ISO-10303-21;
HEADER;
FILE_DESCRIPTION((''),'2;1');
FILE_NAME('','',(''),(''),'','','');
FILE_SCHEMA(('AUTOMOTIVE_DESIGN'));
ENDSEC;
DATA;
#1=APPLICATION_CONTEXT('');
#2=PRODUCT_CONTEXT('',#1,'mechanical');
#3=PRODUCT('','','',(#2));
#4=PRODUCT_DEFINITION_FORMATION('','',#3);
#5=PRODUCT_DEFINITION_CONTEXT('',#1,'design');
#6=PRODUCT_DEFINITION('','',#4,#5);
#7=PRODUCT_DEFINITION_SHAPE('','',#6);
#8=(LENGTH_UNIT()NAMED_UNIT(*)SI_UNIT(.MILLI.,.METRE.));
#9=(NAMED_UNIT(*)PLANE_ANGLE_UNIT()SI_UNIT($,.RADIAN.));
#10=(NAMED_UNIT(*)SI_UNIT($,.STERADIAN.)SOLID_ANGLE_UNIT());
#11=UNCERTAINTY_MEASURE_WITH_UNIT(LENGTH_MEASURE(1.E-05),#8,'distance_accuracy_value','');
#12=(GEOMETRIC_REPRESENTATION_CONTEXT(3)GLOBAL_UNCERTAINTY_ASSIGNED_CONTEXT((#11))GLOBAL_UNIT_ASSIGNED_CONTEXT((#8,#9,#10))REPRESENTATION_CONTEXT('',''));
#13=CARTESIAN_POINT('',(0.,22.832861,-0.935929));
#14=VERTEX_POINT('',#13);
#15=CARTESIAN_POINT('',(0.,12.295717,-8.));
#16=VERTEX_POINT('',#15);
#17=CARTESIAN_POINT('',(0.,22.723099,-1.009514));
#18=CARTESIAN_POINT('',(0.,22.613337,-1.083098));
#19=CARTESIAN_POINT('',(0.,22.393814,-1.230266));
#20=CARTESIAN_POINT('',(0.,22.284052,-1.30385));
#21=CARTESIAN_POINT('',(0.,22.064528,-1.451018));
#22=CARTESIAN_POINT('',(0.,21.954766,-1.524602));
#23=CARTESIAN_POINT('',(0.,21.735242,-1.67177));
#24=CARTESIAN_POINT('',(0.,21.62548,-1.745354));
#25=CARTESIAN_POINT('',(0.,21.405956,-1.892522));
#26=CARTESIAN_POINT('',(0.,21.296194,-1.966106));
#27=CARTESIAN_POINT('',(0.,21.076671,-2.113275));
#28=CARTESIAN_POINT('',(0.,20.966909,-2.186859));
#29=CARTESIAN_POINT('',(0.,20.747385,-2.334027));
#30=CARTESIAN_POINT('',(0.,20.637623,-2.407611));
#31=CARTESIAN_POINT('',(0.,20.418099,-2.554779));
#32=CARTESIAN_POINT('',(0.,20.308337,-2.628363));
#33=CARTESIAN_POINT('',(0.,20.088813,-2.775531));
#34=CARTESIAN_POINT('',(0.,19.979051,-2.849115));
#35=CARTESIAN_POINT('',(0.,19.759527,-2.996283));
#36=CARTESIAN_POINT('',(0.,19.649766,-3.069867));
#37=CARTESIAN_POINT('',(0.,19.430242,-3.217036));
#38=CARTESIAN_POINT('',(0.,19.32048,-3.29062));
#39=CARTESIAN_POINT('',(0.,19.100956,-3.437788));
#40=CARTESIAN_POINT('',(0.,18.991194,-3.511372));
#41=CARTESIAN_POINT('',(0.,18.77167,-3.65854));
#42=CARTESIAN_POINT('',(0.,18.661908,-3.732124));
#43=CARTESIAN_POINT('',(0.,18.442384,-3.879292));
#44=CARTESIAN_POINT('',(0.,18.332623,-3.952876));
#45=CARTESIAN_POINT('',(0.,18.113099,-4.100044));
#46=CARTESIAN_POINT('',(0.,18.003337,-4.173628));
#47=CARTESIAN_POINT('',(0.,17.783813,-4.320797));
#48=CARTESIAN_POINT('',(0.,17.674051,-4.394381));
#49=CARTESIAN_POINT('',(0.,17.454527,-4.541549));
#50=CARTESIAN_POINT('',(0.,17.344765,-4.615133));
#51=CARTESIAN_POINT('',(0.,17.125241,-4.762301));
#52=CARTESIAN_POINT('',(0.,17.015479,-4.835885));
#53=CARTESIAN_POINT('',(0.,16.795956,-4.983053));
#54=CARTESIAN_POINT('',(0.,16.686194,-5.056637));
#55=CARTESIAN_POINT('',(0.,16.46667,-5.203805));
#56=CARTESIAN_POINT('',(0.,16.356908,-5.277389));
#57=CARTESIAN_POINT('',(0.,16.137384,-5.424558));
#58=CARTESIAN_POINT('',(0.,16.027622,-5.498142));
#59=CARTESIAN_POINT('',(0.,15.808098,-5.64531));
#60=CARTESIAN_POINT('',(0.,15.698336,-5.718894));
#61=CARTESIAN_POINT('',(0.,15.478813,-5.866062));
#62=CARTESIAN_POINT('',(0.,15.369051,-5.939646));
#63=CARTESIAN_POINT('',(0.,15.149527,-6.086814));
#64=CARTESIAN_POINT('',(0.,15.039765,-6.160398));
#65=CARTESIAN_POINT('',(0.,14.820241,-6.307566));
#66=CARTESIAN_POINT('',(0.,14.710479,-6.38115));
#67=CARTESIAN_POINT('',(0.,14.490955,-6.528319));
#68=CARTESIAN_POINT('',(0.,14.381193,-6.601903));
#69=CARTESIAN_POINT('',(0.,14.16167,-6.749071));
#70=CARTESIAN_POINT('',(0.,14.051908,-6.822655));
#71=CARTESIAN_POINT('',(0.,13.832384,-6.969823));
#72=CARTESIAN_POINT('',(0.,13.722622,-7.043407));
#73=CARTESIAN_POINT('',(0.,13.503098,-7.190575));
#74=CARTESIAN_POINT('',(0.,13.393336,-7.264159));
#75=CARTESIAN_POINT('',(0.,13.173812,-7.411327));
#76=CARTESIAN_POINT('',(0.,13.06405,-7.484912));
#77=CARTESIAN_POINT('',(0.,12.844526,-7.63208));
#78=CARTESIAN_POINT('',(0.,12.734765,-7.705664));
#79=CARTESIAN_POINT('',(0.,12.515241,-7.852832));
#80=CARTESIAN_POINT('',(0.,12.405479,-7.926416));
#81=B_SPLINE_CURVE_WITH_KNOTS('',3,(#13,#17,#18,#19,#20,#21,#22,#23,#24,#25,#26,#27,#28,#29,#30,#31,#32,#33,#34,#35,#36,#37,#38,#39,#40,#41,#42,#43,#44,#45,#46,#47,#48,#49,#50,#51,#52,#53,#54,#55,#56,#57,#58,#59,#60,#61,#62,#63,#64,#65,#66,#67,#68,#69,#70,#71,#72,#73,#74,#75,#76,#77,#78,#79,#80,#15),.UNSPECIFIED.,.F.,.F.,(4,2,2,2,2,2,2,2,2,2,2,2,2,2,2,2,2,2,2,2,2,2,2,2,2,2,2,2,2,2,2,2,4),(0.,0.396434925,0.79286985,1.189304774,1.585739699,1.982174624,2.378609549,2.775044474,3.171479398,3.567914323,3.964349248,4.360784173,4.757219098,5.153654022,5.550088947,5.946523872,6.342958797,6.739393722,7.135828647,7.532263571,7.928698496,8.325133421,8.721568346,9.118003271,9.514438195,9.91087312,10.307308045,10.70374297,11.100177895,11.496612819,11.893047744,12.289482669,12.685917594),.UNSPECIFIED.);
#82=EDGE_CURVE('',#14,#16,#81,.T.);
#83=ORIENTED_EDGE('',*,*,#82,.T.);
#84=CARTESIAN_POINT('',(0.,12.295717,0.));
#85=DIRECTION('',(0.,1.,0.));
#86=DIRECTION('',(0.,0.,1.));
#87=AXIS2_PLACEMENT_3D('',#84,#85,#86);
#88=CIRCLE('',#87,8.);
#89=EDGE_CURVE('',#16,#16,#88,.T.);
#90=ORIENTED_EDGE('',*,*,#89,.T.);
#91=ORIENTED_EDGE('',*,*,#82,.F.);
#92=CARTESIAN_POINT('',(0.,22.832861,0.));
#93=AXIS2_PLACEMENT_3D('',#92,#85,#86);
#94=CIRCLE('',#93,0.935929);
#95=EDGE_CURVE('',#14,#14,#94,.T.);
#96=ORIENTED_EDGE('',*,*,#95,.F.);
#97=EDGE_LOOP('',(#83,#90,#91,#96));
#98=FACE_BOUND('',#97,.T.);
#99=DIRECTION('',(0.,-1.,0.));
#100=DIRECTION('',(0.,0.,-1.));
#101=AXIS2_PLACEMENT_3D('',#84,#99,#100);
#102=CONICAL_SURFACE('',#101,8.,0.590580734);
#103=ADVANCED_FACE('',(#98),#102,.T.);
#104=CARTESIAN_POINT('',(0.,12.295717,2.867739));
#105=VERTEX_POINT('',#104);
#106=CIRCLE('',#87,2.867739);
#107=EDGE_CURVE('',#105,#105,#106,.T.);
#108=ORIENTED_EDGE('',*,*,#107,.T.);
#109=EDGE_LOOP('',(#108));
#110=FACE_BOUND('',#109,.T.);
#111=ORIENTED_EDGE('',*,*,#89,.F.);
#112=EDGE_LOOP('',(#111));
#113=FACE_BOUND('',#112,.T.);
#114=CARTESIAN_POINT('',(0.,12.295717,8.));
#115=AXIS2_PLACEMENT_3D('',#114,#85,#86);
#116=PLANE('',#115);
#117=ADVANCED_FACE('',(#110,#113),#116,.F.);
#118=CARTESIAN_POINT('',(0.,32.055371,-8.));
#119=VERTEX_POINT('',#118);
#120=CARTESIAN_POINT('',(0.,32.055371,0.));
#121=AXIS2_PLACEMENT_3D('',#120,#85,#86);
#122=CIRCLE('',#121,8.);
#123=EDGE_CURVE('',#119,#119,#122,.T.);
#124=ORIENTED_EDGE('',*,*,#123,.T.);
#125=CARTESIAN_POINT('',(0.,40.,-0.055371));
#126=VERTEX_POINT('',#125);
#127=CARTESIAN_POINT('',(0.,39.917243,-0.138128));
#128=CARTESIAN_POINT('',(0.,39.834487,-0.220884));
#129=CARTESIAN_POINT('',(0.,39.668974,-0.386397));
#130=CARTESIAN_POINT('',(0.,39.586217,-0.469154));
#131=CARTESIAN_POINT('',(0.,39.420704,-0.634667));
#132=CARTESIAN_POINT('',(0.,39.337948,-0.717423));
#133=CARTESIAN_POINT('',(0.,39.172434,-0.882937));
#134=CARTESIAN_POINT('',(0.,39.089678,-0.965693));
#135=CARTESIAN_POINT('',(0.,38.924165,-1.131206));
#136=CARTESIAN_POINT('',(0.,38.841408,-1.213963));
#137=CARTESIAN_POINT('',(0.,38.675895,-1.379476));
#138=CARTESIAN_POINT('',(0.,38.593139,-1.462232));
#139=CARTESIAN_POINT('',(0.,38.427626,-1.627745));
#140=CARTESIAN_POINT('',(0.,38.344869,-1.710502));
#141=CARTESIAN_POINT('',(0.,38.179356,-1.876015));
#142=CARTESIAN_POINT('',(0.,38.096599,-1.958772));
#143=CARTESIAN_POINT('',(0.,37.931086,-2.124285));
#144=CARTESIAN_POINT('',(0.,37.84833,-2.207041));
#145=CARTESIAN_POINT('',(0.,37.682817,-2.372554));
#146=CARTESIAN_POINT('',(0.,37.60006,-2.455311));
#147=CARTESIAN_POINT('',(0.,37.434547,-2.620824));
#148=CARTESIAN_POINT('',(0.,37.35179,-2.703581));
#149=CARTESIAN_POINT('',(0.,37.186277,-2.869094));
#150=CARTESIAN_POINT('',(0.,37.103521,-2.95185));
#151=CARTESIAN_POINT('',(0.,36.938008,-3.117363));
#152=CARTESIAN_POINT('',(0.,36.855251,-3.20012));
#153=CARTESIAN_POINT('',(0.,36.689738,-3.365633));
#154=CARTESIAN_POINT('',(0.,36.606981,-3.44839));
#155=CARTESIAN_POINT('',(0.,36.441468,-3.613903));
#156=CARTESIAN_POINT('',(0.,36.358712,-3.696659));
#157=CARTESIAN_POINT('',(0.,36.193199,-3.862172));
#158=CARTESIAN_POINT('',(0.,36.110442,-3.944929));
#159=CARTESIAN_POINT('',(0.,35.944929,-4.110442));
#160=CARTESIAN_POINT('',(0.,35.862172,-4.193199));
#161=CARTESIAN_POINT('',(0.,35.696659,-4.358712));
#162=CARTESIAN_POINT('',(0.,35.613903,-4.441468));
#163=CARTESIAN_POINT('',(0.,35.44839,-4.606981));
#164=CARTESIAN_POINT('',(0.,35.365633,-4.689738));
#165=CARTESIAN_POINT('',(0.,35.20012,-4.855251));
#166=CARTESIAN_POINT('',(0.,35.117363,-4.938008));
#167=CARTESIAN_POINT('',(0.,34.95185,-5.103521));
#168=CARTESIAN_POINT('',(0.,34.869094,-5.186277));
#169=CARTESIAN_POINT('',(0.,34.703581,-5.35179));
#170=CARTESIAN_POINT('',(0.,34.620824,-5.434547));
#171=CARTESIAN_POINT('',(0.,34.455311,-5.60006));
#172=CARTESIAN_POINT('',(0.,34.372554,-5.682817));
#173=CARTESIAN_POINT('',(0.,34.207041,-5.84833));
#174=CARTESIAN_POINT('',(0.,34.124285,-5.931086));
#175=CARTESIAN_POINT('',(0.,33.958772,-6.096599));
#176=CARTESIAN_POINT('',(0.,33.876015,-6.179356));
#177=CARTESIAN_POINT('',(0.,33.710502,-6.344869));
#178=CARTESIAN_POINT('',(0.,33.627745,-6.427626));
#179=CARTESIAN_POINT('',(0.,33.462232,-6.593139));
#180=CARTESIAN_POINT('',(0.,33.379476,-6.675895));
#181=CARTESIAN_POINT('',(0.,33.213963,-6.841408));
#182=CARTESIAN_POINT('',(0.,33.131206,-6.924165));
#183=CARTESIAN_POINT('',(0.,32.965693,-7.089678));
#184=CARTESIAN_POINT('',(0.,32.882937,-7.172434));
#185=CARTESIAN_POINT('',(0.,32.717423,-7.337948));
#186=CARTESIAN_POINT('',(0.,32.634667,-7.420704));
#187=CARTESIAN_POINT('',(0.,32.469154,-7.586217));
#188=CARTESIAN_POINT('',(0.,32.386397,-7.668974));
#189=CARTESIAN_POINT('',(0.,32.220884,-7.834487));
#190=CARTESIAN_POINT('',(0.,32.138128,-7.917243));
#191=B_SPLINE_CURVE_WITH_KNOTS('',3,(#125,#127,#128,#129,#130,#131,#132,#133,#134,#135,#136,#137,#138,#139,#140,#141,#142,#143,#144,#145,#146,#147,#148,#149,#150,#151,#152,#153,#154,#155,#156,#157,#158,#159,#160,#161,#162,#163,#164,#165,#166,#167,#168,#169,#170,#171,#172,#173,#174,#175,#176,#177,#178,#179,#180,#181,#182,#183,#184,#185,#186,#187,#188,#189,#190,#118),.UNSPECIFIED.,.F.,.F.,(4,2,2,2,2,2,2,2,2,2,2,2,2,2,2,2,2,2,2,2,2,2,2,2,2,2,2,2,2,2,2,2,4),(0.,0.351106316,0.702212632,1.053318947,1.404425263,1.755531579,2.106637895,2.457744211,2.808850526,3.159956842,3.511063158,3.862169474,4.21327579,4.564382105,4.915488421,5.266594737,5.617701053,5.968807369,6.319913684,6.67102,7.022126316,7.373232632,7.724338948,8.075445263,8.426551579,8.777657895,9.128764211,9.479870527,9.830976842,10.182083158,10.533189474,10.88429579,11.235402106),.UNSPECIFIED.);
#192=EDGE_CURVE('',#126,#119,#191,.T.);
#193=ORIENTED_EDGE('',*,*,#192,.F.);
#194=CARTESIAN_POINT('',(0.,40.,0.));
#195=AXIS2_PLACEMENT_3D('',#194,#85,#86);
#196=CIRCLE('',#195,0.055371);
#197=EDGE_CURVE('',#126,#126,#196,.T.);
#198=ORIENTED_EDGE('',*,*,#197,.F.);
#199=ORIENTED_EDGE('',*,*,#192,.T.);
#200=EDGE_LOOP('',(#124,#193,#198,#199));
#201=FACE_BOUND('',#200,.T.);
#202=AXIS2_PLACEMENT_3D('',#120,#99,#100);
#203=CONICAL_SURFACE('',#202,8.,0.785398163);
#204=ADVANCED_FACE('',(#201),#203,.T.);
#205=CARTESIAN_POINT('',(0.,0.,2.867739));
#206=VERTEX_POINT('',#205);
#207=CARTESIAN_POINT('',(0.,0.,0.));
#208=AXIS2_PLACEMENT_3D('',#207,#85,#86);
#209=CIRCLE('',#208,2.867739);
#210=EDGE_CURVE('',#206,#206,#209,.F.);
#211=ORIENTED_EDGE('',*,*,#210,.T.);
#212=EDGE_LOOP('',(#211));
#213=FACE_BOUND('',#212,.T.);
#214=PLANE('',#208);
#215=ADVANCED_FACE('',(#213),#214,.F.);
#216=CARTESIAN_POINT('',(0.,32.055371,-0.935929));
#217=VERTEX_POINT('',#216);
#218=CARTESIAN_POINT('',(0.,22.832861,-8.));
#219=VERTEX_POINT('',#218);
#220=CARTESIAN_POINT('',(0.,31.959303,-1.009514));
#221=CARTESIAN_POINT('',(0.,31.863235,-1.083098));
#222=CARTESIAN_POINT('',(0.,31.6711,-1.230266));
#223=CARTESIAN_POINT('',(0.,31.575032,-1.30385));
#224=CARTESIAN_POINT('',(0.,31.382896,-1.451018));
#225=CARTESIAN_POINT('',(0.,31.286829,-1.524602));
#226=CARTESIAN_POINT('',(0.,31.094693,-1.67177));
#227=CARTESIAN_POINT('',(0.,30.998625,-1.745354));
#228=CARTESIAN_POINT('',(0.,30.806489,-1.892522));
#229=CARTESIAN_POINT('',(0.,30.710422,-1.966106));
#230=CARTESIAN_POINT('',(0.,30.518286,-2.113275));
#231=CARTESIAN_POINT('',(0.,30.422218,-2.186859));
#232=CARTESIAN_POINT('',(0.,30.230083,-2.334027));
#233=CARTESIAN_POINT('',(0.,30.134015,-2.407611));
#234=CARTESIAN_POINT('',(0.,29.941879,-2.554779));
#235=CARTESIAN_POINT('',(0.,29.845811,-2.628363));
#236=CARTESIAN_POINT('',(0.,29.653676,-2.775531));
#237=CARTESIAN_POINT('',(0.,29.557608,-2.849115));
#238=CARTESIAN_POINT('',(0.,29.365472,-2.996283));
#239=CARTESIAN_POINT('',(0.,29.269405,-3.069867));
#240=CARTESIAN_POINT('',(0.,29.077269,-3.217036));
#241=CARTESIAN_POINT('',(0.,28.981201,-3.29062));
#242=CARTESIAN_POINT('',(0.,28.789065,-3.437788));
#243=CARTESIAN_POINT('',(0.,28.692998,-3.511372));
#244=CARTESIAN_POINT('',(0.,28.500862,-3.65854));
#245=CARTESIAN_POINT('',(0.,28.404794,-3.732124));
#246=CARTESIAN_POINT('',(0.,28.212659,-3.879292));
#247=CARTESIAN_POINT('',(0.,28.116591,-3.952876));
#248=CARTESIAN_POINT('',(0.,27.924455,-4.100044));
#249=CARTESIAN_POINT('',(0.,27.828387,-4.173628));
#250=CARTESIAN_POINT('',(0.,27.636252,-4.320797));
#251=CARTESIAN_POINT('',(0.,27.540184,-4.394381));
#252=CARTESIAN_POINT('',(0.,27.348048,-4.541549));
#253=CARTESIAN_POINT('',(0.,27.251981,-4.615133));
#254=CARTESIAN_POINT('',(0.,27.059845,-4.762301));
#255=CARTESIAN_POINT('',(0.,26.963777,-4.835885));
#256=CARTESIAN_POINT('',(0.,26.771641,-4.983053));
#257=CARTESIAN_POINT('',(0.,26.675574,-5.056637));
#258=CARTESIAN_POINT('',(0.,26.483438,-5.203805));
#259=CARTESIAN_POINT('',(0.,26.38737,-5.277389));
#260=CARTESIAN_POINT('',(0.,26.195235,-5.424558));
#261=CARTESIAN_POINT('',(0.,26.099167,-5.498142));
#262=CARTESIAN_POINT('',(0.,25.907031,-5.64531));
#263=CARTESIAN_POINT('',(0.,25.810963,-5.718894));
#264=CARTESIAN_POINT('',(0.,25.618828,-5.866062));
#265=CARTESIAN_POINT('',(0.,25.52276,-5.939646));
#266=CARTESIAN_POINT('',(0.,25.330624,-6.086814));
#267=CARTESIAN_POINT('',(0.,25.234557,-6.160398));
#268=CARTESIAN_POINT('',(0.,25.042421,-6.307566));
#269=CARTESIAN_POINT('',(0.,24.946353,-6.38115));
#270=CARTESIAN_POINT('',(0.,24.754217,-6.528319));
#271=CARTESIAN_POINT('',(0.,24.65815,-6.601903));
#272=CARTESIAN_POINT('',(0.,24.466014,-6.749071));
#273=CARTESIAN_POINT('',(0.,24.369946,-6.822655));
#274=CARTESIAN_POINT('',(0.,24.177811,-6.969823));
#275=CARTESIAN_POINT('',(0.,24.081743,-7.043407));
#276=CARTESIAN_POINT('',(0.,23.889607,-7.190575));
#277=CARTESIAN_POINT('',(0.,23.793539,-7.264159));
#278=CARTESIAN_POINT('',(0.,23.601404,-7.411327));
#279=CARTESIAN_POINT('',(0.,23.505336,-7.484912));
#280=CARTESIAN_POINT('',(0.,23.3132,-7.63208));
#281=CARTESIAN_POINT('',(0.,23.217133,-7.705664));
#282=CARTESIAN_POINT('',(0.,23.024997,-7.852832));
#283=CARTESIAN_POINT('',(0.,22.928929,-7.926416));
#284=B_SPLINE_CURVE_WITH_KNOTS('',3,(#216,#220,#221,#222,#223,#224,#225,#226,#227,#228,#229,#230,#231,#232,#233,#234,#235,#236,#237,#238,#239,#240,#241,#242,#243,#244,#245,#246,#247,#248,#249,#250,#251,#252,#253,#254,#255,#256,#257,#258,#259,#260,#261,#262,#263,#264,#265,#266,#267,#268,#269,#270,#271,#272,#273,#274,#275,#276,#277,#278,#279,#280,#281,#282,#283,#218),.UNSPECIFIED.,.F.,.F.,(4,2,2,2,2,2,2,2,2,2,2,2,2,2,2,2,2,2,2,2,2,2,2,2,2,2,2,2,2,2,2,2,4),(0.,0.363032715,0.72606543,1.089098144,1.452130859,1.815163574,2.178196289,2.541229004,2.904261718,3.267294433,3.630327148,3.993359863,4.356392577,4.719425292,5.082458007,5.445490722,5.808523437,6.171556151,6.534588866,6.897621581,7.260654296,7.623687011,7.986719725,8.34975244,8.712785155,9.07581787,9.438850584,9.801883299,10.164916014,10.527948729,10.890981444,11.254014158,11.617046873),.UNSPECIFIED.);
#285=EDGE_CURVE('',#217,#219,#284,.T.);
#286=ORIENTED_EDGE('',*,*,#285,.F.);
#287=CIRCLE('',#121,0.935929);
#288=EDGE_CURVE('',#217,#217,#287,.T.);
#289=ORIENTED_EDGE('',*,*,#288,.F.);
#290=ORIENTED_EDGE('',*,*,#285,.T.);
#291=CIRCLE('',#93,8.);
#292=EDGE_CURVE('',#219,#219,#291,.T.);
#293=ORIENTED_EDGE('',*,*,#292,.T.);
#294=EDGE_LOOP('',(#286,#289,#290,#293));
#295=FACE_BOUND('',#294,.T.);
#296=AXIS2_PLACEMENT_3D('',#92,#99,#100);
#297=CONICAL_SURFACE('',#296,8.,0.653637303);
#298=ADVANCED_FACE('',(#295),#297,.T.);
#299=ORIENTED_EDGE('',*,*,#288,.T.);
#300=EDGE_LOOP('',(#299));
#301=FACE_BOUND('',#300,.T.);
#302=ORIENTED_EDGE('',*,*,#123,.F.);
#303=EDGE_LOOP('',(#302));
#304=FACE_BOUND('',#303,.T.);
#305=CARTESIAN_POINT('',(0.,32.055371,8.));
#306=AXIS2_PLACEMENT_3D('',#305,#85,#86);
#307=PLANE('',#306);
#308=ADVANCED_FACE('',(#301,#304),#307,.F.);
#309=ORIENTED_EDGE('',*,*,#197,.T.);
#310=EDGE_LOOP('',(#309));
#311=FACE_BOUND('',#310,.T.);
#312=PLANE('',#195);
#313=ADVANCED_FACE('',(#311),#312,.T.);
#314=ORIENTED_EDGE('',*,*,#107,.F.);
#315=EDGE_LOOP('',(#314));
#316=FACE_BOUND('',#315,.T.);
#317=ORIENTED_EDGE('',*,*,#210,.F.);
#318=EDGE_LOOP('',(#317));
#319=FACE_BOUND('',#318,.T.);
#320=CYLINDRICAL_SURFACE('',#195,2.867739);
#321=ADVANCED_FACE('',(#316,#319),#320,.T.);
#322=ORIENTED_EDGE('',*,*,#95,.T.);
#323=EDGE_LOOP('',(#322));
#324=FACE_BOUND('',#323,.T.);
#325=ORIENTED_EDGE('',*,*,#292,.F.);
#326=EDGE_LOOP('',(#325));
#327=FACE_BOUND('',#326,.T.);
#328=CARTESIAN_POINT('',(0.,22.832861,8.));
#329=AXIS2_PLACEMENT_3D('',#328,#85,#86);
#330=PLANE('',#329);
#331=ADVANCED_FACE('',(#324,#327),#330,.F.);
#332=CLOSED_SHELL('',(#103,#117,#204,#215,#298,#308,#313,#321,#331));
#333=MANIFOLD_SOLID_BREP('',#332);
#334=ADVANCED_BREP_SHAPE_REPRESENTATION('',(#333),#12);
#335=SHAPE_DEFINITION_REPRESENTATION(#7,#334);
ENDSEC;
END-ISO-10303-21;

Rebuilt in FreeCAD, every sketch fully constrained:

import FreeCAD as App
import Part
import Sketcher
from FreeCAD import Vector
Q = App.Units.Quantity

doc = App.newDocument("Part")
body = doc.addObject("PartDesign::Body", "Body")

# Sketch on XZ plane
sketch1 = body.newObject("Sketcher::SketchObject", "Sketch")
sketch1.AttachmentSupport = (doc.getObject("XZ_Plane"), [""])
sketch1.MapMode = "FlatFace"
sketch1.addGeometry(Part.Circle(Vector(0, 0, 0), Vector(0, 0, 1), 8), False)
sketch1.addConstraint(Sketcher.Constraint("Coincident", 0, 3, -1, 1))
sketch1.addConstraint(Sketcher.Constraint("Diameter", 0, Q("16 mm")))
pad1 = body.newObject("PartDesign::Pad", "Pad")
pad1.Profile = sketch1
pad1.Length = 40
pad1.Reversed = True

# Sketch on YZ plane
sketch2 = body.newObject("Sketcher::SketchObject", "Sketch001")
sketch2.AttachmentSupport = (doc.getObject("YZ_Plane"), [""])
sketch2.MapMode = "FlatFace"
sketch2.addGeometry(Part.LineSegment(Vector(32.1, 8, 0), Vector(40, 0.1, 0)), False)
sketch2.addGeometry(Part.LineSegment(Vector(40, 0.1, 0), Vector(42.3, 8.8, 0)), False)
sketch2.addGeometry(Part.LineSegment(Vector(42.3, 8.8, 0), Vector(40, 13, 0)), False)
sketch2.addGeometry(Part.LineSegment(Vector(40, 13, 0), Vector(0.7, 16.7, 0)), False)
sketch2.addGeometry(Part.LineSegment(Vector(0.7, 16.7, 0), Vector(-1.2, 2.9, 0)), False)
sketch2.addGeometry(Part.LineSegment(Vector(-1.2, 2.9, 0), Vector(12.3, 2.9, 0)), False)
sketch2.addGeometry(Part.LineSegment(Vector(12.3, 2.9, 0), Vector(12.3, 8, 0)), False)
sketch2.addGeometry(Part.LineSegment(Vector(12.3, 8, 0), Vector(22.8, 0.9, 0)), False)
sketch2.addGeometry(Part.LineSegment(Vector(22.8, 0.9, 0), Vector(22.8, 8, 0)), False)
sketch2.addGeometry(Part.LineSegment(Vector(22.8, 8, 0), Vector(32.1, 0.9, 0)), False)
sketch2.addGeometry(Part.LineSegment(Vector(32.1, 0.9, 0), Vector(32.1, 8, 0)), False)
sketch2.addConstraint(Sketcher.Constraint("Coincident", 0, 2, 1, 1))
sketch2.addConstraint(Sketcher.Constraint("Coincident", 1, 2, 2, 1))
sketch2.addConstraint(Sketcher.Constraint("Coincident", 2, 2, 3, 1))
sketch2.addConstraint(Sketcher.Constraint("Coincident", 3, 2, 4, 1))
sketch2.addConstraint(Sketcher.Constraint("Coincident", 4, 2, 5, 1))
sketch2.addConstraint(Sketcher.Constraint("Coincident", 5, 2, 6, 1))
sketch2.addConstraint(Sketcher.Constraint("Coincident", 6, 2, 7, 1))
sketch2.addConstraint(Sketcher.Constraint("Coincident", 7, 2, 8, 1))
sketch2.addConstraint(Sketcher.Constraint("Coincident", 8, 2, 9, 1))
sketch2.addConstraint(Sketcher.Constraint("Coincident", 9, 2, 10, 1))
sketch2.addConstraint(Sketcher.Constraint("Coincident", 10, 2, 0, 1))
sketch2.addConstraint(Sketcher.Constraint("Horizontal", 5))
sketch2.addConstraint(Sketcher.Constraint("Vertical", 6))
sketch2.addConstraint(Sketcher.Constraint("Vertical", 8))
sketch2.addConstraint(Sketcher.Constraint("Vertical", 10))
sketch2.addConstraint(Sketcher.Constraint("Horizontal", 6, 2, 8, 2))
sketch2.addConstraint(Sketcher.Constraint("Horizontal", 7, 2, 9, 2))
sketch2.addConstraint(Sketcher.Constraint("Horizontal", 8, 2, 10, 2))
sketch2.addConstraint(Sketcher.Constraint("Vertical", 0, 2, 2, 2))
sketch2.addConstraint(Sketcher.Constraint("Angle", 0, Q("-45 deg")))
sketch2.addConstraint(Sketcher.Constraint("DistanceX", -1, 1, 0, 2, Q("40 mm")))
sketch2.addConstraint(Sketcher.Constraint("DistanceY", -1, 1, 6, 2, Q("8 mm")))
sketch2.addConstraint(Sketcher.Constraint("DistanceX", 5, 1, 5, 2, Q("13.522669 mm")))
sketch2.addConstraint(Sketcher.Constraint("DistanceY", 6, 1, 6, 2, Q("5.132261 mm")))
sketch2.addConstraint(Sketcher.Constraint("DistanceY", 8, 1, 8, 2, Q("7.064071 mm")))
sketch2.addConstraint(Sketcher.Constraint("Distance", 1, Q("9.086329 mm")))
sketch2.addConstraint(Sketcher.Constraint("Distance", 3, Q("39.476131 mm")))
sketch2.addConstraint(Sketcher.Constraint("DistanceY", -1, 1, 0, 2, Q("0.055371 mm")))
sketch2.addConstraint(Sketcher.Constraint("DistanceX", -1, 1, 1, 2, Q("42.326578 mm")))
sketch2.addConstraint(Sketcher.Constraint("DistanceX", -1, 1, 3, 2, Q("0.704858 mm")))
sketch2.addConstraint(Sketcher.Constraint("DistanceX", 4, 2, -1, 1, Q("1.226952 mm")))
sketch2.addConstraint(Sketcher.Constraint("DistanceX", -1, 1, 7, 2, Q("22.832861 mm")))
sketch2.addConstraint(Sketcher.Constraint("DistanceY", 1, 2, 2, 2, Q("4.127048 mm")))
groove = body.newObject("PartDesign::Groove", "Groove")
groove.Profile = sketch2
groove.ReferenceAxis = (sketch2, ["H_Axis"])
groove.Angle = 360

doc.recompute()
